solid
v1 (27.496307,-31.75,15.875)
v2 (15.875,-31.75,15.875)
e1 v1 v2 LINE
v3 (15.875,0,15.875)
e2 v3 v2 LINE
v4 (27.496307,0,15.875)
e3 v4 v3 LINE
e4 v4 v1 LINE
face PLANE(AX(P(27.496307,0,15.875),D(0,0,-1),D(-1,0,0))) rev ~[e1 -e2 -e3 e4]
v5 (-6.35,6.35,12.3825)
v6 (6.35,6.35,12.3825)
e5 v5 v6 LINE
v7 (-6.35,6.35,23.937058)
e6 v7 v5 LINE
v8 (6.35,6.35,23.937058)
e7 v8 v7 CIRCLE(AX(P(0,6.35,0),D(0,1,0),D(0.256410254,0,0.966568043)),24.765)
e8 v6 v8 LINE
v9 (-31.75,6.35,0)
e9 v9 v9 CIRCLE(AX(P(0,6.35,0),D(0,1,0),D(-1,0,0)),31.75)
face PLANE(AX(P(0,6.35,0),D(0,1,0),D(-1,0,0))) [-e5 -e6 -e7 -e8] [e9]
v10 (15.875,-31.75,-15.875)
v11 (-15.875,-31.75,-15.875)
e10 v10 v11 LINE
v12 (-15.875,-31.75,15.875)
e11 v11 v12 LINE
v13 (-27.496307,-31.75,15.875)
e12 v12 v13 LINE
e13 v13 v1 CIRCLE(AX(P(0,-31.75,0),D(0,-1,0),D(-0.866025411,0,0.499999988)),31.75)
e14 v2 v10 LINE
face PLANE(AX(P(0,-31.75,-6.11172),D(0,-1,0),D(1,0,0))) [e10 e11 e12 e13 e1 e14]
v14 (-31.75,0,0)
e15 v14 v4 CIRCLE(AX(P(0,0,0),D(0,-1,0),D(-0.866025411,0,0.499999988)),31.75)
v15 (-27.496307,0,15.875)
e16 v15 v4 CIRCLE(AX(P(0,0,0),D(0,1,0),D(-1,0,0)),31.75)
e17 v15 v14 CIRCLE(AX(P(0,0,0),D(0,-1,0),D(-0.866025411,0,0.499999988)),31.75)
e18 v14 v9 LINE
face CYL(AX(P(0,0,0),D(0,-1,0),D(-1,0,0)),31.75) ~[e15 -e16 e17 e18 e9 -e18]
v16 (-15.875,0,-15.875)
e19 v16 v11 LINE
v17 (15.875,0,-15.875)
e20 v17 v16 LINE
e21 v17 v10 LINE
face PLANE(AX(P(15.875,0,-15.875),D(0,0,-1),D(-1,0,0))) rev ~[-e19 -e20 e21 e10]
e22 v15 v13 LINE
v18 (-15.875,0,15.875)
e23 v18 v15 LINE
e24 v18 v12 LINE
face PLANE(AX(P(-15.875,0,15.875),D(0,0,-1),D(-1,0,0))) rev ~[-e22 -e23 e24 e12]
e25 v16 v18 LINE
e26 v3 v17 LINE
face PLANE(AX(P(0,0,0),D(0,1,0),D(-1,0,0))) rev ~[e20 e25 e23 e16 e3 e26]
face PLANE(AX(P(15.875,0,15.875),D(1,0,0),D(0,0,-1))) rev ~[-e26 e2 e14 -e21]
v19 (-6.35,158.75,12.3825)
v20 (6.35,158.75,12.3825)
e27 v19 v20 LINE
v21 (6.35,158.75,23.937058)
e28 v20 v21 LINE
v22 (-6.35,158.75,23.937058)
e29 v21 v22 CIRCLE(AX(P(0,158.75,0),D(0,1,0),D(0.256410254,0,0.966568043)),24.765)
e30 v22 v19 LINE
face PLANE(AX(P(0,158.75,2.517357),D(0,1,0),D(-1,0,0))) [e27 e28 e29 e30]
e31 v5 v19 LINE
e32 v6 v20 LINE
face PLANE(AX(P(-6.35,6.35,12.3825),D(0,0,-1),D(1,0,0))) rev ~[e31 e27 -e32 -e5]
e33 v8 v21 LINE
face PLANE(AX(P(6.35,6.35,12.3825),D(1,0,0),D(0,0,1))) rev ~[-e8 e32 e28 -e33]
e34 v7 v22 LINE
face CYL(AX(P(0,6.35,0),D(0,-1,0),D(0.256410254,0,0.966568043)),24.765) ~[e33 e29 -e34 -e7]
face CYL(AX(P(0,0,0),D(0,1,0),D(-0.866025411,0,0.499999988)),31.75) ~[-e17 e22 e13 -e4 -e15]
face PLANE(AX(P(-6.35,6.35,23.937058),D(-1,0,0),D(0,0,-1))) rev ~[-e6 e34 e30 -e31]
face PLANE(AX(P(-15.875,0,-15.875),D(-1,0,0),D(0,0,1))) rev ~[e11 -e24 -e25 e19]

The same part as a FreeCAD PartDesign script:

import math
import FreeCAD as App
import Part
import Sketcher
from FreeCAD import Vector
Q = App.Units.Quantity

doc = App.newDocument("Part")
params = doc.addObject("Spreadsheet::Sheet", "Params")
for row, (alias, value) in enumerate([
    ("sketch1_radius", "1.25 in"),
    ("sketch1_width", "1.25 in"),
    ("pad1_length", "1.25 in"),
    ("sketch2_diameter", "2.5 in"),
    ("pad2_length", "0.25 in"),
    ("sketch3_width", "0.5 in"),
    ("sketch3_radius", "0.975 in"),
    ("pad3_length", "6 in"),
], start=1):
    params.set(f"A{row}", alias)
    params.set(f"B{row}", "=" + value)
    params.setAlias(f"B{row}", alias)

body = doc.addObject("PartDesign::Body", "Body")

sketch1 = body.newObject("Sketcher::SketchObject", "Sketch")
sketch1.AttachmentSupport = (doc.getObject("XZ_Plane"), [""])
sketch1.MapMode = "FlatFace"
sketch1.addGeometry([
    Part.LineSegment(Vector(-16, 16, 0), Vector(-27, 16, 0)),
    Part.ArcOfCircle(Part.Circle(Vector(0, 0, 0), Vector(0, 0, 1), 32), math.radians(150), math.radians(390)),
    Part.LineSegment(Vector(27, 16, 0), Vector(16, 16, 0)),
    Part.LineSegment(Vector(16, 16, 0), Vector(16, -16, 0)),
    Part.LineSegment(Vector(16, -16, 0), Vector(-16, -16, 0)),
    Part.LineSegment(Vector(-16, -16, 0), Vector(-16, 16, 0)),
], False)
sketch1.addConstraint([
    Sketcher.Constraint("Coincident", 0, 2, 1, 1),
    Sketcher.Constraint("Coincident", 1, 2, 2, 1),
    Sketcher.Constraint("Coincident", 2, 2, 3, 1),
    Sketcher.Constraint("Coincident", 3, 2, 4, 1),
    Sketcher.Constraint("Coincident", 4, 2, 5, 1),
    Sketcher.Constraint("Coincident", 5, 2, 0, 1),
    Sketcher.Constraint("Horizontal", 0),
    Sketcher.Constraint("Horizontal", 2),
    Sketcher.Constraint("Vertical", 3),
    Sketcher.Constraint("Horizontal", 4),
    Sketcher.Constraint("Vertical", 5),
    Sketcher.Constraint("Coincident", 1, 3, -1, 1),
    Sketcher.Constraint("Symmetric", 2, 2, 4, 2, -1, 1),
    Sketcher.Constraint("Horizontal", 0, 2, 1, 2),
    Sketcher.Constraint("Equal", 4, 3),
    Sketcher.Constraint("Radius", 1, Q("1.25 in")),
    Sketcher.Constraint("DistanceX", 4, 2, 4, 1, Q("1.25 in")),
])
sketch1.setExpression("Constraints[15]", "Params.sketch1_radius")
sketch1.setExpression("Constraints[16]", "Params.sketch1_width")
pad1 = body.newObject("PartDesign::Pad", "Pad")
pad1.Profile = sketch1
pad1.setExpression("Length", "Params.pad1_length")

sketch2 = body.newObject("Sketcher::SketchObject", "Sketch001")
sketch2.AttachmentSupport = (doc.getObject("XZ_Plane"), [""])
sketch2.MapMode = "FlatFace"
sketch2.addGeometry(Part.Circle(Vector(0, 0, 0), Vector(0, 0, 1), 32), False)
sketch2.addConstraint([
    Sketcher.Constraint("Coincident", 0, 3, -1, 1),
    Sketcher.Constraint("Diameter", 0, Q("2.5 in")),
])
sketch2.setExpression("Constraints[1]", "Params.sketch2_diameter")
pad2 = body.newObject("PartDesign::Pad", "Pad001")
pad2.Profile = sketch2
pad2.setExpression("Length", "Params.pad2_length")
pad2.Reversed = True

sketch3 = body.newObject("Sketcher::SketchObject", "Sketch002")
sketch3.AttachmentSupport = (doc.getObject("XZ_Plane"), [""])
sketch3.MapMode = "FlatFace"
sketch3.AttachmentOffset = App.Placement(Vector(0, 0, -0.25 * 25.4), App.Rotation())
sketch3.addGeometry([
    Part.LineSegment(Vector(6, 12, 0), Vector(6, 24, 0)),
    Part.ArcOfCircle(Part.Circle(Vector(0, 0, 0), Vector(0, 0, 1), 25), math.radians(105), math.radians(435)),
    Part.LineSegment(Vector(-6, 24, 0), Vector(-6, 12, 0)),
    Part.LineSegment(Vector(-6, 12, 0), Vector(6, 12, 0)),
], False)
sketch3.addConstraint([
    Sketcher.Constraint("Coincident", 0, 2, 1, 2),
    Sketcher.Constraint("Coincident", 1, 1, 2, 1),
    Sketcher.Constraint("Coincident", 2, 2, 3, 1),
    Sketcher.Constraint("Coincident", 3, 2, 0, 1),
    Sketcher.Constraint("Vertical", 0),
    Sketcher.Constraint("Vertical", 2),
    Sketcher.Constraint("Horizontal", 3),
    Sketcher.Constraint("Coincident", 1, 3, -1, 1),
    Sketcher.Constraint("Horizontal", 0, 2, 1, 1),
    Sketcher.Constraint("DistanceX", 3, 1, 3, 2, Q("0.5 in")),
    Sketcher.Constraint("Radius", 1, Q("0.975 in")),
    Sketcher.Constraint("DistanceY", -1, 1, 2, 2, Q("0.4875 in")),
])
sketch3.setExpression("Constraints[9]", "Params.sketch3_width")
sketch3.setExpression("Constraints[10]", "Params.sketch3_radius")
pad3 = body.newObject("PartDesign::Pad", "Pad002")
pad3.Profile = sketch3
pad3.setExpression("Length", "Params.pad3_length")
pad3.Reversed = True

doc.recompute()
